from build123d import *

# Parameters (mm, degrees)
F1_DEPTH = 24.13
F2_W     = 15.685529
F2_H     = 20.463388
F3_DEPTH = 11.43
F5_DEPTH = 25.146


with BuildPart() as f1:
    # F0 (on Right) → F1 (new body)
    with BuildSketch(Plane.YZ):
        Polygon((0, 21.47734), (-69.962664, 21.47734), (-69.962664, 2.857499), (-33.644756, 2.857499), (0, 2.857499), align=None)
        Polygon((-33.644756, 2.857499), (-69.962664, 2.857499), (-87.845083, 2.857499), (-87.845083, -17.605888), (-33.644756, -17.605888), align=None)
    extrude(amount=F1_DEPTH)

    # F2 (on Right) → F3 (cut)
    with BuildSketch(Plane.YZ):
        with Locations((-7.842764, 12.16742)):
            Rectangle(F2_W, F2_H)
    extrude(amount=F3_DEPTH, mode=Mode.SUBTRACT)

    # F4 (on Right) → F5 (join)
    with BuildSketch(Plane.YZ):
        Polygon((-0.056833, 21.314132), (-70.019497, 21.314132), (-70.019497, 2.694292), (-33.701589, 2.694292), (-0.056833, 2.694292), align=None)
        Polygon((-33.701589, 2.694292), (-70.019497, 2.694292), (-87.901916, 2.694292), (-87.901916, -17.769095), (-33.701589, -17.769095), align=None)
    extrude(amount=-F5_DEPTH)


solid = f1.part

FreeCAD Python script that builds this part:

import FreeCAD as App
import Part
import Sketcher
Q = App.Units.Quantity


def add_polygon(sketch, points):
    """Adds a closed chain of lines whose ends are joined by coincident constraints."""
    first, n = sketch.GeometryCount, len(points)
    for a, b in zip(points, points[1:] + points[:1]):
        sketch.addGeometry(Part.LineSegment(App.Vector(*a, 0), App.Vector(*b, 0)), False)
    for i in range(n):
        sketch.addConstraint(Sketcher.Constraint("Coincident", first + i, 2, first + (i + 1) % n, 1))

doc = App.newDocument("Part")
body = doc.addObject("PartDesign::Body", "Body")

# Sketch on YZ plane
sketch1 = body.newObject("Sketcher::SketchObject", "Sketch")
sketch1.AttachmentSupport = (doc.getObject("YZ_Plane"), [""])
sketch1.MapMode = "FlatFace"
add_polygon(sketch1, [(0, 21), (-70, 21), (-70, 3), (-88, 3), (-88, -18), (-34, -18), (-34, 3), (0, 3)])  # lines 0-7
sketch1.addConstraint([
    Sketcher.Constraint("Horizontal", 0),
    Sketcher.Constraint("Vertical", 1),
    Sketcher.Constraint("Horizontal", 2),
    Sketcher.Constraint("Vertical", 3),
    Sketcher.Constraint("Horizontal", 4),
    Sketcher.Constraint("Vertical", 5),
    Sketcher.Constraint("Horizontal", 6),
    Sketcher.Constraint("Vertical", 7),
    Sketcher.Constraint("PointOnObject", 6, 2, -2),
    Sketcher.Constraint("Horizontal", 2, 2, 5, 2),
    Sketcher.Constraint("DistanceY", -1, 1, 1, 2, Q("0.1125 in")),
    Sketcher.Constraint("DistanceX", 2, 2, 2, 1, 17.882419),
    Sketcher.Constraint("DistanceY", 1, 2, 1, 1, 18.619841),
    Sketcher.Constraint("DistanceX", 0, 2, 0, 1, 69.962664),
    Sketcher.Constraint("DistanceX", 4, 1, 4, 2, 54.200327),
    Sketcher.Constraint("DistanceY", 3, 2, 3, 1, 20.463387),
])
pad1 = body.newObject("PartDesign::Pad", "Pad")
pad1.Profile = sketch1
pad1.Length = Q("0.95 in")

# Sketch on YZ plane
sketch2 = body.newObject("Sketcher::SketchObject", "Sketch001")
sketch2.AttachmentSupport = (doc.getObject("YZ_Plane"), [""])
sketch2.MapMode = "FlatFace"
add_polygon(sketch2, [(-16, 22), (-16, 2), (0, 2), (0, 22)])  # lines 0-3
sketch2.addConstraint([
    Sketcher.Constraint("Vertical", 0),
    Sketcher.Constraint("Horizontal", 1),
    Sketcher.Constraint("Vertical", 2),
    Sketcher.Constraint("Horizontal", 3),
    Sketcher.Constraint("PointOnObject", 1, 2, -2),
    Sketcher.Constraint("DistanceX", 1, 1, 1, 2, 15.685529),
    Sketcher.Constraint("DistanceY", 0, 2, 0, 1, 20.463388),
    Sketcher.Constraint("DistanceY", -1, 1, 0, 2, 1.935726),
])
pocket1 = body.newObject("PartDesign::Pocket", "Pocket")
pocket1.Profile = sketch2
pocket1.Length = Q("0.45 in")
pocket1.Reversed = True

# Sketch on YZ plane
sketch3 = body.newObject("Sketcher::SketchObject", "Sketch002")
sketch3.AttachmentSupport = (doc.getObject("YZ_Plane"), [""])
sketch3.MapMode = "FlatFace"
add_polygon(sketch3, [(0, 21), (-70, 21), (-70, 3), (-88, 3), (-88, -18), (-34, -18), (-34, 3), (0, 3)])  # lines 0-7
sketch3.addConstraint([
    Sketcher.Constraint("Horizontal", 0),
    Sketcher.Constraint("Vertical", 1),
    Sketcher.Constraint("Horizontal", 2),
    Sketcher.Constraint("Vertical", 3),
    Sketcher.Constraint("Horizontal", 4),
    Sketcher.Constraint("Vertical", 5),
    Sketcher.Constraint("Horizontal", 6),
    Sketcher.Constraint("Vertical", 7),
    Sketcher.Constraint("Horizontal", 2, 2, 5, 2),
    Sketcher.Constraint("DistanceX", 2, 2, 2, 1, 17.882419),
    Sketcher.Constraint("DistanceY", 1, 2, 1, 1, 18.61984),
    Sketcher.Constraint("DistanceX", 0, 2, 0, 1, 69.962664),
    Sketcher.Constraint("DistanceX", 4, 1, 4, 2, 54.200327),
    Sketcher.Constraint("DistanceY", 3, 2, 3, 1, 20.463387),
    Sketcher.Constraint("DistanceY", -1, 1, 1, 2, 2.694292),
    Sketcher.Constraint("DistanceX", 4, 2, -1, 1, 33.701589),
])
pad2 = body.newObject("PartDesign::Pad", "Pad001")
pad2.Profile = sketch3
pad2.Length = Q("0.99 in")
pad2.Reversed = True

doc.recompute()
